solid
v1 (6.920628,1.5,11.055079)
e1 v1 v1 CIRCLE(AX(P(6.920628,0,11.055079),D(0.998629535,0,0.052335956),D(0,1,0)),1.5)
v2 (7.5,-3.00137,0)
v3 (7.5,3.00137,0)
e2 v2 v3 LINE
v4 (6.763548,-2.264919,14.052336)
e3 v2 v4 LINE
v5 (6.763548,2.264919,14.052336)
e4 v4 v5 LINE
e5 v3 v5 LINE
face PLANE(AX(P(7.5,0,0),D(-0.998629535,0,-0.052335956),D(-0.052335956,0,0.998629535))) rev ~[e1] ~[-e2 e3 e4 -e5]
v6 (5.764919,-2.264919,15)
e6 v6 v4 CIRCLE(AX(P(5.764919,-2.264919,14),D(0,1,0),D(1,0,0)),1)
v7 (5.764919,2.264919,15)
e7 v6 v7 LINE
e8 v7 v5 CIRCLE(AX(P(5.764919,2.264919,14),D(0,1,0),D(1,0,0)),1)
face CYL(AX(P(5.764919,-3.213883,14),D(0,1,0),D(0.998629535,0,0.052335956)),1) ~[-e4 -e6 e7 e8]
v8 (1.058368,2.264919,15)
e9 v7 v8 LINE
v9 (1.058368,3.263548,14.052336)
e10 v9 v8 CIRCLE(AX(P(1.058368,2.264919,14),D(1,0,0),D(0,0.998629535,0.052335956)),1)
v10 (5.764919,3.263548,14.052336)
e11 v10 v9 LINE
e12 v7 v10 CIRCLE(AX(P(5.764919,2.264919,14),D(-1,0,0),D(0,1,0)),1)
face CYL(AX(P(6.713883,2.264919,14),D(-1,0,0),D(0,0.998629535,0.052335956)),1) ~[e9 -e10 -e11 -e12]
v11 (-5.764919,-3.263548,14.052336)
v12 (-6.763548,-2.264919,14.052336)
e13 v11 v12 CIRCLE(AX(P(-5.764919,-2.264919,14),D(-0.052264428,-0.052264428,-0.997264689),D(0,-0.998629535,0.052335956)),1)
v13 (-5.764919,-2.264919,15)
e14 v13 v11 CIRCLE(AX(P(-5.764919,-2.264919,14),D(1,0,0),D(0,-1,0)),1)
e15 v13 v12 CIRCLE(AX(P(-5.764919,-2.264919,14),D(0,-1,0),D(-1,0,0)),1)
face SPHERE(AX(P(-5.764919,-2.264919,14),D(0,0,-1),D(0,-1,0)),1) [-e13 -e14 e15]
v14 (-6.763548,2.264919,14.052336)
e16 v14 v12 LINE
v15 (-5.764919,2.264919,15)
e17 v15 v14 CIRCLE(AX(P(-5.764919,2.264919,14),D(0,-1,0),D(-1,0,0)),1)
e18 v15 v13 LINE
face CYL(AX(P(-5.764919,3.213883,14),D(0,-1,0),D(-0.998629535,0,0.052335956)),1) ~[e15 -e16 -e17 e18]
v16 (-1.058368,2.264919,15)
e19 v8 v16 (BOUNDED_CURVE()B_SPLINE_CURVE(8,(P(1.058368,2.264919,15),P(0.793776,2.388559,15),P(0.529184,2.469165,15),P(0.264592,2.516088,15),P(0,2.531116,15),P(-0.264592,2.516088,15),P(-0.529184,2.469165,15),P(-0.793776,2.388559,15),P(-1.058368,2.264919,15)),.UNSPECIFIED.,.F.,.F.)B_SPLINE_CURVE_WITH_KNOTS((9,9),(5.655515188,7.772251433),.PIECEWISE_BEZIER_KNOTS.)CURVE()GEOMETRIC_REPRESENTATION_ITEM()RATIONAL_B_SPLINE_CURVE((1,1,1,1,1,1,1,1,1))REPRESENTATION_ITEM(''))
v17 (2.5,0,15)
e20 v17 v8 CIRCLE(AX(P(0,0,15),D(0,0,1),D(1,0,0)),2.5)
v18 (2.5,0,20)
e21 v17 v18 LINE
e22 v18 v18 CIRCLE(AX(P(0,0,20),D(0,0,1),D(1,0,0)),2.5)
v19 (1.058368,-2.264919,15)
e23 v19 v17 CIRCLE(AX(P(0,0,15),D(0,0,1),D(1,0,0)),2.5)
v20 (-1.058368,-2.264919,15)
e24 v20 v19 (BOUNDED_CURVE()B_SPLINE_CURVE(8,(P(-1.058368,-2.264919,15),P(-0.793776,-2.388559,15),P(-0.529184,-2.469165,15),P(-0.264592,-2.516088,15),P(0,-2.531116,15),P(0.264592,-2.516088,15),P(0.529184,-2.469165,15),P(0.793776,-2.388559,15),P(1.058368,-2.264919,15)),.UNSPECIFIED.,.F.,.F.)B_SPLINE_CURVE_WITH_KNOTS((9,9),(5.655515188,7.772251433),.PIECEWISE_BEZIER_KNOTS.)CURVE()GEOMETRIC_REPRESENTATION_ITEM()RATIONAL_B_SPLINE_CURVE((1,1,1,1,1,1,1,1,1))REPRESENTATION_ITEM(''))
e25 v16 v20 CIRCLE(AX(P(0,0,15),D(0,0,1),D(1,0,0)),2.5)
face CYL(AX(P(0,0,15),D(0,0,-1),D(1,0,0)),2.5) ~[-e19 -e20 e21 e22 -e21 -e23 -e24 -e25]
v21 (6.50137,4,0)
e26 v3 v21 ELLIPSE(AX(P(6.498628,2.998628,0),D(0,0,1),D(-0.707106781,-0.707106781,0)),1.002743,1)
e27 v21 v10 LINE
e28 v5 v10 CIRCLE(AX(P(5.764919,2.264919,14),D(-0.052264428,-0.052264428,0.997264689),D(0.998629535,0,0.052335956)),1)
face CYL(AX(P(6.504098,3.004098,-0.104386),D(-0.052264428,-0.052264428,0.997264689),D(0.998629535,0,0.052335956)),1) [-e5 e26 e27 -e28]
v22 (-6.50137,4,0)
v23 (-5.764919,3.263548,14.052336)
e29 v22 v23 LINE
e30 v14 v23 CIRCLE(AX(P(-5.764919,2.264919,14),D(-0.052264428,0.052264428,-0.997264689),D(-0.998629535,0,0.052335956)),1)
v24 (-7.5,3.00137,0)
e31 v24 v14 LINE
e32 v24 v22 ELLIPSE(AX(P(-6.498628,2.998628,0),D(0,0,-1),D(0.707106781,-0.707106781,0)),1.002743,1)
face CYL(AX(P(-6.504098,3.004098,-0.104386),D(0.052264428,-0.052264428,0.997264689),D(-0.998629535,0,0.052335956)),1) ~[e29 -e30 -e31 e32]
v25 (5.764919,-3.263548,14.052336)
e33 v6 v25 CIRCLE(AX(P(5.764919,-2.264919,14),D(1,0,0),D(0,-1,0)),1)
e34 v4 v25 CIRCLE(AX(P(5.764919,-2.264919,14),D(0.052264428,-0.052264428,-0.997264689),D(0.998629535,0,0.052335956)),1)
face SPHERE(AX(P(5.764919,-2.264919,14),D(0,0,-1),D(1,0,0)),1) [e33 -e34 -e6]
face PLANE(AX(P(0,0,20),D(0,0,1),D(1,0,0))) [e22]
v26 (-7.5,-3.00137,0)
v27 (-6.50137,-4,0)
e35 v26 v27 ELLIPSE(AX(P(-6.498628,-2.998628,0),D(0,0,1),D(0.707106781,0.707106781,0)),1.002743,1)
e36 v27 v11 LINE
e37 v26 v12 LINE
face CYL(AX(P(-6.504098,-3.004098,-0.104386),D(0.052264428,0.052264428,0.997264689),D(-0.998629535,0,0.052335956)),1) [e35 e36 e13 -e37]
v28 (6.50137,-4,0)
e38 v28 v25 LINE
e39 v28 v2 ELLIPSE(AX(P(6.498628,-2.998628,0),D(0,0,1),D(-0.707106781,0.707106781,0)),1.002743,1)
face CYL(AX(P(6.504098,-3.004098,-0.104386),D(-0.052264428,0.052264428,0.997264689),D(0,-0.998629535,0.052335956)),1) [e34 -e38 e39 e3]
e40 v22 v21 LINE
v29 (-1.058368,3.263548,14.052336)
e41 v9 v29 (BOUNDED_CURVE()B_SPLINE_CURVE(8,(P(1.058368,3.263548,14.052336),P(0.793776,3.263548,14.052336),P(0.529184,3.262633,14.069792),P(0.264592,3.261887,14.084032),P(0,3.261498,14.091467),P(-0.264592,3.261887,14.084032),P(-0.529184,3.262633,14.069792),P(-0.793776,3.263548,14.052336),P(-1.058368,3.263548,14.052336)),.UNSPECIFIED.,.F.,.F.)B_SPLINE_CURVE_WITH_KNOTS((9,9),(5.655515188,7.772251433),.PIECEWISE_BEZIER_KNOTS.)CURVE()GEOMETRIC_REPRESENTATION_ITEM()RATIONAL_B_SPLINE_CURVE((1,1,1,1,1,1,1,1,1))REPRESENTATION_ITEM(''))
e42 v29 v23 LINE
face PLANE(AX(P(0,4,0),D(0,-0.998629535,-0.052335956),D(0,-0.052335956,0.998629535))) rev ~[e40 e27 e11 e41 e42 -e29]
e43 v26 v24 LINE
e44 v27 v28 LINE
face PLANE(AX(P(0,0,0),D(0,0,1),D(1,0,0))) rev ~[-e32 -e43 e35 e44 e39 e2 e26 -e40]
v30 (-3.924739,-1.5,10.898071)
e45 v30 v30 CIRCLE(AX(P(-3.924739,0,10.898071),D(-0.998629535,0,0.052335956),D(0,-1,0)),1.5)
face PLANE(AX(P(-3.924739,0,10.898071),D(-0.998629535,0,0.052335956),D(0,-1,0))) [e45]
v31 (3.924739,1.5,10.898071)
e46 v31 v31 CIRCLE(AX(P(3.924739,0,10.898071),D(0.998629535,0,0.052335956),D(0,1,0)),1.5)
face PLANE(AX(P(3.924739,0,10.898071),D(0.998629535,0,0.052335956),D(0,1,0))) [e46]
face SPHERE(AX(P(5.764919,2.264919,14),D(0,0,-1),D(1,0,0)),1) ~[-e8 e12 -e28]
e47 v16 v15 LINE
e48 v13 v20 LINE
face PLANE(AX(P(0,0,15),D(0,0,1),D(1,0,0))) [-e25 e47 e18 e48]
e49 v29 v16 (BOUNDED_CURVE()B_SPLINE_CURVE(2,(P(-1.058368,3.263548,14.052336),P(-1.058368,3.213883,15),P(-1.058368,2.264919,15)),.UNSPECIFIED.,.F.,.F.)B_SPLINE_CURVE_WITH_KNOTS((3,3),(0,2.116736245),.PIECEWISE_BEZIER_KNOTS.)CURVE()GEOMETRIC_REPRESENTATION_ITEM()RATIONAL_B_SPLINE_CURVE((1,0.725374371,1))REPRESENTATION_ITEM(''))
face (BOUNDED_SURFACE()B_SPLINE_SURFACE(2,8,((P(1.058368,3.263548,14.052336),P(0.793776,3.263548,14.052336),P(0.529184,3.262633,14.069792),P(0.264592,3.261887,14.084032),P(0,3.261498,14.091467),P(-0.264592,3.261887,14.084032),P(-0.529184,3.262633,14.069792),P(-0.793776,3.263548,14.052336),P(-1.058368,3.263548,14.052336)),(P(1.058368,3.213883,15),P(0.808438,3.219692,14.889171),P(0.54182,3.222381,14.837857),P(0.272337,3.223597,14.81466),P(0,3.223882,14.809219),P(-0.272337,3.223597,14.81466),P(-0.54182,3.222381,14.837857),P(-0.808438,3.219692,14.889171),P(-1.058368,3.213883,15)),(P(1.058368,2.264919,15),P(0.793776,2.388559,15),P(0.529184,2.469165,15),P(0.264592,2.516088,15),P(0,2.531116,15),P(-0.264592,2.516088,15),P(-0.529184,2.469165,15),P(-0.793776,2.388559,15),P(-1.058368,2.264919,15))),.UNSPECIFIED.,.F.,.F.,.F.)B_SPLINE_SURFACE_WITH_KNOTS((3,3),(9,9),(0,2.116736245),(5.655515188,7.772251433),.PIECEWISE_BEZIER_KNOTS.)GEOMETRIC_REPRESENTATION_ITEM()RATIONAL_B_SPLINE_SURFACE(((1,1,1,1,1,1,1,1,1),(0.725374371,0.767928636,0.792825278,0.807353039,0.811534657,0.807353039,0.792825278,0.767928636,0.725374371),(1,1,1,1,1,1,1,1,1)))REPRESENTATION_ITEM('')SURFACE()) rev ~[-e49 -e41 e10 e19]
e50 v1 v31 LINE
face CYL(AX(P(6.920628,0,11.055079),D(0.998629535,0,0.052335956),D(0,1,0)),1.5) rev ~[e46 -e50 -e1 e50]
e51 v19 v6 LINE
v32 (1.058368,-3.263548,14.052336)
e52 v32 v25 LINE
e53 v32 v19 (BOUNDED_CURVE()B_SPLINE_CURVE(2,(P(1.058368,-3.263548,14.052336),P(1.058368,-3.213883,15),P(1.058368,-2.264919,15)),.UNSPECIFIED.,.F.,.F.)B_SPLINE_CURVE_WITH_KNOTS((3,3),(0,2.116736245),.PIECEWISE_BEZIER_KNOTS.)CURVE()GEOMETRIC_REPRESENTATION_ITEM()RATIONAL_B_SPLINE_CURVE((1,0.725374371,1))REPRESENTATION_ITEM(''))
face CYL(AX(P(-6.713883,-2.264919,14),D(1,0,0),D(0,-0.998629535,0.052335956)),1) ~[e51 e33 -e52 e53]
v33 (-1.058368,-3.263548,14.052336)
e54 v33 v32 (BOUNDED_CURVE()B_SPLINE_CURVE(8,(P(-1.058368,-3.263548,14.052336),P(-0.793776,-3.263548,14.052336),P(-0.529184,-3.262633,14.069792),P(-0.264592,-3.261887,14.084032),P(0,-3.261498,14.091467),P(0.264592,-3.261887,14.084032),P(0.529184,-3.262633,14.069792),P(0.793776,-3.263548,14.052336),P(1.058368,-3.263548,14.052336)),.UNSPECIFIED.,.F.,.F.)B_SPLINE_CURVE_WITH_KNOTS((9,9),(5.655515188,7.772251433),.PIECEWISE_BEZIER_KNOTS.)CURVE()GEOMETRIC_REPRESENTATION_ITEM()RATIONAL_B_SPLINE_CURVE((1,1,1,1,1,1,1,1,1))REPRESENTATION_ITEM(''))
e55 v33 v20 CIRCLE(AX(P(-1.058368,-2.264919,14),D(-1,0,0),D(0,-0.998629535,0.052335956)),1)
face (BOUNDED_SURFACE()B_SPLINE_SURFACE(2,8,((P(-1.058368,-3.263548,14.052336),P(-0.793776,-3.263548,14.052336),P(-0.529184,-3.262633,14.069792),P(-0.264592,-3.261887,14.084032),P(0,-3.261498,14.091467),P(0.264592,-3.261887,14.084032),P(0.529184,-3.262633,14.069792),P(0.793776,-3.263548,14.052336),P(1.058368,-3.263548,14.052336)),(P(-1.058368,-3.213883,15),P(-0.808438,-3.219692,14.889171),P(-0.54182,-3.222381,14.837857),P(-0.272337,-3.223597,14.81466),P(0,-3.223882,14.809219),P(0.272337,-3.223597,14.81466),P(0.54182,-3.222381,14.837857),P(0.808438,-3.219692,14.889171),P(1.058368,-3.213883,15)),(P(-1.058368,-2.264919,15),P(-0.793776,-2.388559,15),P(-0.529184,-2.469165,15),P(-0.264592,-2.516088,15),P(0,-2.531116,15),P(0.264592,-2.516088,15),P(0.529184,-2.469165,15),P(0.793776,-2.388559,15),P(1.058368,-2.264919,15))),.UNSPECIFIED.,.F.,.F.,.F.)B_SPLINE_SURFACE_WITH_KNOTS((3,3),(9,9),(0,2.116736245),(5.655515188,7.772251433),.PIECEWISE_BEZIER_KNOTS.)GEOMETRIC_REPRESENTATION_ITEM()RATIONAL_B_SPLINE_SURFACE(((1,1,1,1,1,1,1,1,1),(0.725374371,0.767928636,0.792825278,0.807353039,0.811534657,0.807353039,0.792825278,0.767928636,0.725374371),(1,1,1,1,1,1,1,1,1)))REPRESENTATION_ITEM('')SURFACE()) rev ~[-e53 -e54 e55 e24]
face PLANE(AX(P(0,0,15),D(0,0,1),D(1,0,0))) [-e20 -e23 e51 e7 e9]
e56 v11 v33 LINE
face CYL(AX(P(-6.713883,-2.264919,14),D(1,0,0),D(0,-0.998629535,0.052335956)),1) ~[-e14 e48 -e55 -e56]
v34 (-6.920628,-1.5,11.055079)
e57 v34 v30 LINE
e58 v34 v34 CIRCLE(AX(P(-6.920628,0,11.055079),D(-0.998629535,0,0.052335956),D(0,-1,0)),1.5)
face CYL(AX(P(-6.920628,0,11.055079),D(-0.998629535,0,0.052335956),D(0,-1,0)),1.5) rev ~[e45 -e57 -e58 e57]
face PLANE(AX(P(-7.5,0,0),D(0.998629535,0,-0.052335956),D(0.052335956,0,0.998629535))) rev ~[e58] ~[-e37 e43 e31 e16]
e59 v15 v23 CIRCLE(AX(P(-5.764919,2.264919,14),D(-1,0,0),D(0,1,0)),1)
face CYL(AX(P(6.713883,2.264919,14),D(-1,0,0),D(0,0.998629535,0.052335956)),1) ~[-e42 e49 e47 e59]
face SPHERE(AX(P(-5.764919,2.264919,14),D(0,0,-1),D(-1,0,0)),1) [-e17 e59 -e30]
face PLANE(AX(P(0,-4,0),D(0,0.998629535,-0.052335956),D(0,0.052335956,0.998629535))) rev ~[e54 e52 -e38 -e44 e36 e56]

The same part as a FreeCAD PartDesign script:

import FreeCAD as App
import Part
import Sketcher


def edges_at(feature, points):
    """Names of the edges that pass closest to the given points."""
    edges = feature.Shape.Edges
    near = lambda p: min(range(len(edges)), key=lambda i: edges[i].distToShape(Part.Vertex(*p))[0])
    return sorted({f"Edge{near(p) + 1}" for p in points})


def add_polygon(sketch, points):
    """Adds a closed chain of lines whose ends are joined by coincident constraints."""
    first, n = sketch.GeometryCount, len(points)
    for a, b in zip(points, points[1:] + points[:1]):
        sketch.addGeometry(Part.LineSegment(App.Vector(*a, 0), App.Vector(*b, 0)), False)
    for i in range(n):
        sketch.addConstraint(Sketcher.Constraint("Coincident", first + i, 2, first + (i + 1) % n, 1))

doc = App.newDocument("Part")
body = doc.addObject("PartDesign::Body", "Body")

sketch1 = body.newObject("Sketcher::SketchObject", "Sketch")
sketch1.AttachmentSupport = (doc.getObject("XY_Plane"), [""])
sketch1.MapMode = "FlatFace"
add_polygon(sketch1, [(-7.5, 4), (-7.5, -4), (7.5, -4), (7.5, 4)])
sketch1.addConstraint([
    Sketcher.Constraint("Vertical", 0),
    Sketcher.Constraint("Horizontal", 1),
    Sketcher.Constraint("Vertical", 2),
    Sketcher.Constraint("Horizontal", 3),
    Sketcher.Constraint("Symmetric", 0, 2, 2, 2, -1, 1),
    Sketcher.Constraint("DistanceX", 1, 1, 1, 2, 15.0),
    Sketcher.Constraint("DistanceY", 0, 2, 0, 1, 8.0),
])
pad1 = body.newObject("PartDesign::Pad", "Pad")
pad1.Profile = sketch1
pad1.Length = 15
pad1.TaperAngle = -3

sketch2 = body.newObject("Sketcher::SketchObject", "Sketch001")
sketch2.AttachmentSupport = (doc.getObject("XY_Plane"), [""])
sketch2.MapMode = "FlatFace"
sketch2.AttachmentOffset = App.Placement(App.Vector(0, 0, 15), App.Rotation())
sketch2.addGeometry(Part.Circle(App.Vector(0, 0, 0), App.Vector(0, 0, 1), 2.5), False)
sketch2.addConstraint([
    Sketcher.Constraint("Coincident", 0, 3, -1, 1),
    Sketcher.Constraint("Diameter", 0, 5.0),
])
pad2 = body.newObject("PartDesign::Pad", "Pad001")
pad2.Profile = sketch2
pad2.Length = 5
doc.recompute()

fillet = body.newObject("PartDesign::Fillet", "Fillet")
fillet.Base = (pad2, edges_at(pad2, [
    (-7.107, -3.607, 7.5),
    (7.107, -3.607, 7.5),
    (7.107, 3.607, 7.5),
    (-7.107, 3.607, 7.5),
    (6.714, 0, 15),
    (0, -3.214, 15),
    (-6.714, 0, 15),
    (0, 3.214, 15),
]))
fillet.Radius = 1

sketch3 = body.newObject("Sketcher::SketchObject", "Sketch002")
sketch3.Placement = App.Placement(App.Vector(7.479457, 0, 0.391982), App.Rotation(App.Vector(0, 1, 0), App.Vector(-0.052335956, 0, 0.998629535), App.Vector(0.998629535, 0, 0.052335956), "ZXY"))
sketch3.addGeometry(Part.Circle(App.Vector(0, 10.67773, 0), App.Vector(0, 0, 1), 1.5), False)
sketch3.addConstraint([
    Sketcher.Constraint("PointOnObject", 0, 3, -2),
    Sketcher.Constraint("Diameter", 0, 3.0),
    Sketcher.Constraint("DistanceY", -1, 1, 0, 3, 10.67773),
])
pocket1 = body.newObject("PartDesign::Pocket", "Pocket")
pocket1.Profile = sketch3
pocket1.Length = 3

sketch4 = body.newObject("Sketcher::SketchObject", "Sketch003")
sketch4.Placement = App.Placement(App.Vector(-7.479457, 0, 0.391982), App.Rotation(App.Vector(0, -1, 0), App.Vector(0.052335956, 0, 0.998629535), App.Vector(-0.998629535, 0, 0.052335956), "ZXY"))
sketch4.addGeometry(Part.Circle(App.Vector(0, 10.67773, 0), App.Vector(0, 0, 1), 1.5), False)
sketch4.addConstraint([
    Sketcher.Constraint("PointOnObject", 0, 3, -2),
    Sketcher.Constraint("Diameter", 0, 3.0),
    Sketcher.Constraint("DistanceY", -1, 1, 0, 3, 10.67773),
])
pocket2 = body.newObject("PartDesign::Pocket", "Pocket001")
pocket2.Profile = sketch4
pocket2.Length = 3

doc.recompute()
